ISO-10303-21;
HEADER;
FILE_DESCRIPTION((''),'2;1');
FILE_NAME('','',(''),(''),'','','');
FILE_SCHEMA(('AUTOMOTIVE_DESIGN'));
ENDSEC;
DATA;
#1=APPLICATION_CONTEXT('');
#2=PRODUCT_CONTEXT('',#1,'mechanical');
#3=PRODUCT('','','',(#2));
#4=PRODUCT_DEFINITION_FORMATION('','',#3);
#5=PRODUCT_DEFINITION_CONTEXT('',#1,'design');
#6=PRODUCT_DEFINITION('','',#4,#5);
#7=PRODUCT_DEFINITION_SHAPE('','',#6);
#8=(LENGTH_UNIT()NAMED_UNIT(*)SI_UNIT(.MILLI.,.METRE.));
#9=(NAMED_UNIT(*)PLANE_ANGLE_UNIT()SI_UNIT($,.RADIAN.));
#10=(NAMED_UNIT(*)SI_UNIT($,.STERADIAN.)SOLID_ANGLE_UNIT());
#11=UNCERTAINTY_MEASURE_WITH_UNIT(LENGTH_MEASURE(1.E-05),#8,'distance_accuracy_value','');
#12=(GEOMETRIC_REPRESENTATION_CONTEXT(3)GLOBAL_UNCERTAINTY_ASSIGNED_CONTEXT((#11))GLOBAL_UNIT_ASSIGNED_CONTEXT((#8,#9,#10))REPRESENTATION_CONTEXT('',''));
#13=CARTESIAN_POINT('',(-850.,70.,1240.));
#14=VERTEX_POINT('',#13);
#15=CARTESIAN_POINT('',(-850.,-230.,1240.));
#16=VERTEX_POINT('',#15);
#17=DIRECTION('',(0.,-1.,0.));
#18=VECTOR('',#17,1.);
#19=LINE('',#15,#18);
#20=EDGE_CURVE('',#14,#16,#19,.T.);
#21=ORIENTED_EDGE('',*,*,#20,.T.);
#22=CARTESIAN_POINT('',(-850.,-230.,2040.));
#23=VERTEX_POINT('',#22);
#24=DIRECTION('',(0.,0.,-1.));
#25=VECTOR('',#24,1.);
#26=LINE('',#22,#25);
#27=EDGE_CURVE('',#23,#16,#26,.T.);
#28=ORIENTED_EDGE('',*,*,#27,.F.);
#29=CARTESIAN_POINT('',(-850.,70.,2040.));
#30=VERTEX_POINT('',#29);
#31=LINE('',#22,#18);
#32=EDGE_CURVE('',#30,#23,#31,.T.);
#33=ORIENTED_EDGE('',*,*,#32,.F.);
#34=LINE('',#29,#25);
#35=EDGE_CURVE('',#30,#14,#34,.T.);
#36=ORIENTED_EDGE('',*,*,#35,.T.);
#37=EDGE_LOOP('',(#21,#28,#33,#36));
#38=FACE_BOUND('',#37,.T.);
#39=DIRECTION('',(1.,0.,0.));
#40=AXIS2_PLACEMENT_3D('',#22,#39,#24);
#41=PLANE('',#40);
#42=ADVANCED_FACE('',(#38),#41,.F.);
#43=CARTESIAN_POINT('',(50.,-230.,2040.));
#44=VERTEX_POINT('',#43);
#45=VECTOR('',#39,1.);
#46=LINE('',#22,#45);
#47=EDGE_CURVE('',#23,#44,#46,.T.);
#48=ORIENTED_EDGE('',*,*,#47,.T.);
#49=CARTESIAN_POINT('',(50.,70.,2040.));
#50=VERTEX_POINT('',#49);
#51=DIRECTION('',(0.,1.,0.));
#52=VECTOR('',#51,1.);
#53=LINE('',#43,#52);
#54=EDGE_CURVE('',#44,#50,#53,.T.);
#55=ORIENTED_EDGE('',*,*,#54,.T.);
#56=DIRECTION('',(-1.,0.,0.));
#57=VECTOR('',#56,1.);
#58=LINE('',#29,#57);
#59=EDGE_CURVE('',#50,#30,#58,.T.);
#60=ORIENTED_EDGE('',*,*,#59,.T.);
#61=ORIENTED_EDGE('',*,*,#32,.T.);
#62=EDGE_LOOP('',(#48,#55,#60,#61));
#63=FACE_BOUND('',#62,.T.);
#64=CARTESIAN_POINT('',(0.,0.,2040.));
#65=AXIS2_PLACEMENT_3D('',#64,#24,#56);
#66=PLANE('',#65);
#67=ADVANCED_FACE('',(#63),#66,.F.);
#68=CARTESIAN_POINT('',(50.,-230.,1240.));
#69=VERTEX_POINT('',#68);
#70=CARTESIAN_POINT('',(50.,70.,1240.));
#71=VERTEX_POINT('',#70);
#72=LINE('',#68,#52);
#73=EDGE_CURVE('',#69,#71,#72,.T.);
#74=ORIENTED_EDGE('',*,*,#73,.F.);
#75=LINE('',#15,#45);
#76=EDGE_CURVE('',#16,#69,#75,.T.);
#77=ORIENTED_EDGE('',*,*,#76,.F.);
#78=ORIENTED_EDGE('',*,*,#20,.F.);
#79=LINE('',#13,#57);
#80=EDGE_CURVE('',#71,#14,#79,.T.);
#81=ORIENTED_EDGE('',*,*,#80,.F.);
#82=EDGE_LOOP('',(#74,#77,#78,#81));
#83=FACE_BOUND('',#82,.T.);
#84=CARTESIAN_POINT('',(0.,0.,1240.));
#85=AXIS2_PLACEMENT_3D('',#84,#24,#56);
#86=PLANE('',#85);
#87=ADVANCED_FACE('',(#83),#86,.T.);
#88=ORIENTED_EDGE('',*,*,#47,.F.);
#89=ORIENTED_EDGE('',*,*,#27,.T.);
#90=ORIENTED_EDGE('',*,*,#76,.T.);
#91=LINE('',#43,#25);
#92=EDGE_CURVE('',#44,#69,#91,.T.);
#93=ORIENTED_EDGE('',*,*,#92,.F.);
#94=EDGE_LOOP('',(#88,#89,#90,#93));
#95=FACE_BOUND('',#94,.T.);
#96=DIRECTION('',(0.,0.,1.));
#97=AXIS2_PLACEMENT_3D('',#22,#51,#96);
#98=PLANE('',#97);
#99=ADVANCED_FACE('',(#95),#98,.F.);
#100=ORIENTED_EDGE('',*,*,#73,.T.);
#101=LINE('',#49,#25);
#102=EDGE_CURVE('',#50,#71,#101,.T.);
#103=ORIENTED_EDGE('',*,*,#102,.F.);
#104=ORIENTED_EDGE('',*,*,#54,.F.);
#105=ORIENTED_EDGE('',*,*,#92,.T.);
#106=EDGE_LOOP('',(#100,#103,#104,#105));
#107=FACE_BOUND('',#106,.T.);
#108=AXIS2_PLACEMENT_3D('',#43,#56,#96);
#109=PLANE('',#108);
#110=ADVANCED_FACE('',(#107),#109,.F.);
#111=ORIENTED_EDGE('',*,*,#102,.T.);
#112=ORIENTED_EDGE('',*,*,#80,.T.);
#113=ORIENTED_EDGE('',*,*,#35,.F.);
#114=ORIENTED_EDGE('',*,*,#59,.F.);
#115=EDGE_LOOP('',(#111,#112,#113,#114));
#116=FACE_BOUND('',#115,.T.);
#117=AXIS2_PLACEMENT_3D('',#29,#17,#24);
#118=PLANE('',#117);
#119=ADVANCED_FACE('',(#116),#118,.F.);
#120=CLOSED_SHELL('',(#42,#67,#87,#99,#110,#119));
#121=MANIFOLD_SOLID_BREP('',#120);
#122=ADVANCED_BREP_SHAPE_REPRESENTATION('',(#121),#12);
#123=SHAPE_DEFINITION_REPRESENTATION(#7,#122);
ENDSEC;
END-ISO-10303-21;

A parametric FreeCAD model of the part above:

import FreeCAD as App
import Part
import Sketcher

V = App.Vector

doc = App.newDocument("Part")
body = doc.addObject("PartDesign::Body", "Body")

# Sketch on XY plane
sketch1 = doc.addObject("Sketcher::SketchObject", "Sketch")
body.addObject(sketch1)
sketch1.AttachmentSupport = (doc.XY_Plane, [""])
sketch1.MapMode = "FlatFace"
sketch1.AttachmentOffset = App.Placement(V(0, 0, 1240), App.Rotation())
sketch1.addGeometry([
    Part.LineSegment(V(-850, 70, 0), V(-850, -230, 0)),
    Part.LineSegment(V(-850, -230, 0), V(50, -230, 0)),
    Part.LineSegment(V(50, -230, 0), V(50, 70, 0)),
    Part.LineSegment(V(50, 70, 0), V(-850, 70, 0)),
], False)
sketch1.addConstraint([
    Sketcher.Constraint("Coincident", 0, 2, 1, 1),
    Sketcher.Constraint("Coincident", 1, 2, 2, 1),
    Sketcher.Constraint("Coincident", 2, 2, 3, 1),
    Sketcher.Constraint("Coincident", 3, 2, 0, 1),
    Sketcher.Constraint("Vertical", 0),
    Sketcher.Constraint("Horizontal", 1),
    Sketcher.Constraint("Vertical", 2),
    Sketcher.Constraint("Horizontal", 3),
    Sketcher.Constraint("DistanceX", 1, 1, 1, 2, 900.0),
    Sketcher.Constraint("DistanceY", 0, 2, 0, 1, 300.0),
    Sketcher.Constraint("DistanceX", 0, 2, -1, 1, 850.0),
    Sketcher.Constraint("DistanceY", 0, 2, -1, 1, 230.0),
])
pad1 = doc.addObject("PartDesign::Pad", "Pad")
body.addObject(pad1)
pad1.Profile = sketch1
pad1.Length = 800

doc.recompute()
